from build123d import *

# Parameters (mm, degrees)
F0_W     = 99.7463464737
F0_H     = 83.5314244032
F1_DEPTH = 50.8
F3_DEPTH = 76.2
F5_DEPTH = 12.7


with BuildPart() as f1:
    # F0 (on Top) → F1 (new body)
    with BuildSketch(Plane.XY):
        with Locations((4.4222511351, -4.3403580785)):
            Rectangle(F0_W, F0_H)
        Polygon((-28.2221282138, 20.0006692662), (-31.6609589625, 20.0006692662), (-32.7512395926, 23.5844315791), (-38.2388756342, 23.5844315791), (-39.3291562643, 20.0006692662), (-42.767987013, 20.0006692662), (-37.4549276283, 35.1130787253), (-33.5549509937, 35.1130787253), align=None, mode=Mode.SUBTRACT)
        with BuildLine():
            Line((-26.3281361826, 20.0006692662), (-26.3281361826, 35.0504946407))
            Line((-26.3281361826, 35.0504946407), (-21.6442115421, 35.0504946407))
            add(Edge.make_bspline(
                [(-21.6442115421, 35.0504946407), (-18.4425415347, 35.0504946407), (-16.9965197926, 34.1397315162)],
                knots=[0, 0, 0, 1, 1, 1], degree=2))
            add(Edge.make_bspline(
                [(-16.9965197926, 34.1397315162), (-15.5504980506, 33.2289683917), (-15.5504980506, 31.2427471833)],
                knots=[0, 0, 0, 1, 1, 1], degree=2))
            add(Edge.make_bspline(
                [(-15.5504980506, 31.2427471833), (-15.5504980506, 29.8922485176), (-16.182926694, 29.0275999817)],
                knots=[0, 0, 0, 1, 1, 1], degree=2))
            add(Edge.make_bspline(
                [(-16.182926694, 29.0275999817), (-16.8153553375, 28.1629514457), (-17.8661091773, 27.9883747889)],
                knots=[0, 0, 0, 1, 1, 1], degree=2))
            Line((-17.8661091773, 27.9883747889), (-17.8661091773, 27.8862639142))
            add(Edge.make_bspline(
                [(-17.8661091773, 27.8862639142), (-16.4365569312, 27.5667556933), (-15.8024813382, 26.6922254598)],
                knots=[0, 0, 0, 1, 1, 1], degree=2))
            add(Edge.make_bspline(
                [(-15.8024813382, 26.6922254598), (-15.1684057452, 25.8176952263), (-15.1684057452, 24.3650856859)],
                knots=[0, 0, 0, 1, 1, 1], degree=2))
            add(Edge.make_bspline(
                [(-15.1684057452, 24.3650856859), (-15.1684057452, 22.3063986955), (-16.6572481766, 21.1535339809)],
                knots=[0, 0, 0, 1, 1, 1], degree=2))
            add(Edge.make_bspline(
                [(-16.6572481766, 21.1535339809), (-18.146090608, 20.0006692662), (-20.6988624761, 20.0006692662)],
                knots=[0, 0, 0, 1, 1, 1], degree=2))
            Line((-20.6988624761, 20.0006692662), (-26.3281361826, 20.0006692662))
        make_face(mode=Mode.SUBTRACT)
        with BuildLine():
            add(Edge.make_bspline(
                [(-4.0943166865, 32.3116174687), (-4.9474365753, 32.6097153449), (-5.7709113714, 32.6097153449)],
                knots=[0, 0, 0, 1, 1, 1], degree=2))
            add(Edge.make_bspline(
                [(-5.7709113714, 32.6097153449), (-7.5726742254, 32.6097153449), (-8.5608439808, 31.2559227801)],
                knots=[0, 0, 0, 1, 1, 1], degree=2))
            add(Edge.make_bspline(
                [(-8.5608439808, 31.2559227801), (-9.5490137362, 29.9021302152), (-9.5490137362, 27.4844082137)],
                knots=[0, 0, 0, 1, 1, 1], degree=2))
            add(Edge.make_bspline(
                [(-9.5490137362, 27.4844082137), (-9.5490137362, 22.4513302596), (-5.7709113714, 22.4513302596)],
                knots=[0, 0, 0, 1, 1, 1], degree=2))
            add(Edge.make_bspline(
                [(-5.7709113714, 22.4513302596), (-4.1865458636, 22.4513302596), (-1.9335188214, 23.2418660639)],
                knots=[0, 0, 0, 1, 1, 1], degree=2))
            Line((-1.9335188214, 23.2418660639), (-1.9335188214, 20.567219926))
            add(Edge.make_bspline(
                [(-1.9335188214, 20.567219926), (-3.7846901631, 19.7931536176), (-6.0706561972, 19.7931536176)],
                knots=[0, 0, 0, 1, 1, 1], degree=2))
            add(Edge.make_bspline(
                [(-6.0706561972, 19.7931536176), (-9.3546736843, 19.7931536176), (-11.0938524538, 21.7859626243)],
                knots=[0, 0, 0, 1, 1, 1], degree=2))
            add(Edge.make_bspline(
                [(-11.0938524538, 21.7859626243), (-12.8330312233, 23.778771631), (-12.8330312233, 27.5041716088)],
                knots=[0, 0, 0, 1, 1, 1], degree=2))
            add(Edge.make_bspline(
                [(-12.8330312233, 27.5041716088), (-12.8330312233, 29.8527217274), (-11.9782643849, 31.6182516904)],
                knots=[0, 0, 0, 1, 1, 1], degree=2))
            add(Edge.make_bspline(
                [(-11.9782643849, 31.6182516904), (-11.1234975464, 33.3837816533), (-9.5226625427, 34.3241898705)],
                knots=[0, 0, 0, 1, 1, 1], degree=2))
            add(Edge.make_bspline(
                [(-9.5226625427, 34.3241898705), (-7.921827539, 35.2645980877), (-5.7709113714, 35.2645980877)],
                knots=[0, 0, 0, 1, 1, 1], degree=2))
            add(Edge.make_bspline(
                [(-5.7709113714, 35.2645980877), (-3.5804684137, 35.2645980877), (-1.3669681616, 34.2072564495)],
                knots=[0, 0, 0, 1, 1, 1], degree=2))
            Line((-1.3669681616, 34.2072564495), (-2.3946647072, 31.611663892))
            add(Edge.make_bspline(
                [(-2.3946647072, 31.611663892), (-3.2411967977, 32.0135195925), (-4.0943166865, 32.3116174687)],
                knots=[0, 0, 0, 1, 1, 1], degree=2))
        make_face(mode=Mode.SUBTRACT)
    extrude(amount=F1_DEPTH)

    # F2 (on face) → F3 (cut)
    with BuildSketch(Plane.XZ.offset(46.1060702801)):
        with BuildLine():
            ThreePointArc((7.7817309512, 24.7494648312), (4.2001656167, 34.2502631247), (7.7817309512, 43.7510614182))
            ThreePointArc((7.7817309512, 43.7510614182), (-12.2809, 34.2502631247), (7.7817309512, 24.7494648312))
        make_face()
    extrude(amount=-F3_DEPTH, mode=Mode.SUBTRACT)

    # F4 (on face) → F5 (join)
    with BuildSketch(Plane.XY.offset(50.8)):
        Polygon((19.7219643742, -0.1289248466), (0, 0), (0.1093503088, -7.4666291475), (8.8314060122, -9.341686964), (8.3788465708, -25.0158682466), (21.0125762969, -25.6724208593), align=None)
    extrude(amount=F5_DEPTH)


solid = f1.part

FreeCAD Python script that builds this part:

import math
import FreeCAD as App
import Part
import Sketcher
Q = App.Units.Quantity

doc = App.newDocument("Part")
body = doc.addObject("PartDesign::Body", "Body")

sketch1 = body.newObject("Sketcher::SketchObject", "Sketch")
sketch1.AttachmentSupport = (doc.getObject("XY_Plane"), [""])
sketch1.MapMode = "FlatFace"
sketch1.addGeometry(Part.LineSegment(App.Vector(-45.450922, 37.425354, 0), App.Vector(-45.450922, -46.10607, 0)), False)
sketch1.addGeometry(Part.LineSegment(App.Vector(-45.450922, -46.10607, 0), App.Vector(54.295424, -46.10607, 0)), False)
sketch1.addGeometry(Part.LineSegment(App.Vector(54.295424, -46.10607, 0), App.Vector(54.295424, 37.425354, 0)), False)
sketch1.addGeometry(Part.LineSegment(App.Vector(54.295424, 37.425354, 0), App.Vector(-45.450922, 37.425354, 0)), False)
sketch1.addGeometry(Part.LineSegment(App.Vector(-20.698862, 20.000669, 0), App.Vector(-26.328136, 20.000669, 0)), False)
sketch1.addGeometry(Part.LineSegment(App.Vector(-26.328136, 20.000669, 0), App.Vector(-26.328136, 35.050495, 0)), False)
sketch1.addGeometry(Part.LineSegment(App.Vector(-26.328136, 35.050495, 0), App.Vector(-21.644212, 35.050495, 0)), False)
sketch1.addGeometry(Part.BSplineCurve([App.Vector(-21.644212, 35.050495, 0), App.Vector(-18.442542, 35.050495, 0), App.Vector(-16.99652, 34.139732, 0)], [3, 3], [0, 1], False, 2, [1, 1, 1], False), False)
sketch1.addGeometry(Part.BSplineCurve([App.Vector(-16.99652, 34.139732, 0), App.Vector(-15.550498, 33.228968, 0), App.Vector(-15.550498, 29.892249, 0), App.Vector(-16.182927, 29.0276, 0)], [3, 1, 3], [0, 1, 1.679933665], False, 2, [1, 1, 1, 1], False), False)
sketch1.addGeometry(Part.BSplineCurve([App.Vector(-16.182927, 29.0276, 0), App.Vector(-16.815355, 28.162951, 0), App.Vector(-17.866109, 27.988375, 0)], [3, 3], [0, 1], False, 2, [1, 1, 1], False), False)
sketch1.addGeometry(Part.LineSegment(App.Vector(-17.866109, 27.988375, 0), App.Vector(-17.866109, 27.886264, 0)), False)
sketch1.addGeometry(Part.BSplineCurve([App.Vector(-17.866109, 27.886264, 0), App.Vector(-16.436557, 27.566756, 0), App.Vector(-15.168406, 25.817695, 0), App.Vector(-15.168406, 22.306399, 0), App.Vector(-16.657248, 21.153534, 0)], [3, 1, 1, 3], [0, 1, 2, 3.41723356], False, 2, [1, 1, 1, 1, 1], False), False)
sketch1.addGeometry(Part.BSplineCurve([App.Vector(-16.657248, 21.153534, 0), App.Vector(-18.146091, 20.000669, 0), App.Vector(-20.698862, 20.000669, 0)], [3, 3], [0, 1], False, 2, [1, 1, 1], False), False)
sketch1.addGeometry(Part.LineSegment(App.Vector(-33.554951, 35.113079, 0), App.Vector(-28.222128, 20.000669, 0)), False)
sketch1.addGeometry(Part.LineSegment(App.Vector(-28.222128, 20.000669, 0), App.Vector(-31.660959, 20.000669, 0)), False)
sketch1.addGeometry(Part.LineSegment(App.Vector(-31.660959, 20.000669, 0), App.Vector(-32.75124, 23.584432, 0)), False)
sketch1.addGeometry(Part.LineSegment(App.Vector(-32.75124, 23.584432, 0), App.Vector(-38.238876, 23.584432, 0)), False)
sketch1.addGeometry(Part.LineSegment(App.Vector(-38.238876, 23.584432, 0), App.Vector(-39.329156, 20.000669, 0)), False)
sketch1.addGeometry(Part.LineSegment(App.Vector(-39.329156, 20.000669, 0), App.Vector(-42.767987, 20.000669, 0)), False)
sketch1.addGeometry(Part.LineSegment(App.Vector(-42.767987, 20.000669, 0), App.Vector(-37.454928, 35.113079, 0)), False)
sketch1.addGeometry(Part.LineSegment(App.Vector(-37.454928, 35.113079, 0), App.Vector(-33.554951, 35.113079, 0)), False)
sketch1.addGeometry(Part.BSplineCurve([App.Vector(-2.394665, 31.611664, 0), App.Vector(-3.241197, 32.01352, 0), App.Vector(-4.947437, 32.609715, 0), App.Vector(-7.572674, 32.609715, 0), App.Vector(-8.560844, 31.255923, 0)], [3, 1, 1, 3], [0, 1, 2, 4.188], False, 2, [1, 1, 1, 1, 1], False), False)
sketch1.addGeometry(Part.BSplineCurve([App.Vector(-8.560844, 31.255923, 0), App.Vector(-9.549014, 29.90213, 0), App.Vector(-9.549014, 22.45133, 0), App.Vector(-4.186546, 22.45133, 0), App.Vector(-1.933519, 23.241866, 0)], [3, 1, 1, 3], [0, 1, 3.081743869, 3.954733234], False, 2, [1, 1, 1, 1, 1], False), False)
sketch1.addGeometry(Part.LineSegment(App.Vector(-1.933519, 23.241866, 0), App.Vector(-1.933519, 20.56722, 0)), False)
sketch1.addGeometry(Part.BSplineCurve([App.Vector(-1.933519, 20.56722, 0), App.Vector(-3.78469, 19.793154, 0), App.Vector(-9.354674, 19.793154, 0), App.Vector(-12.833031, 23.778772, 0), App.Vector(-12.833031, 29.852722, 0), App.Vector(-11.978264, 31.618252, 0)], [3, 1, 1, 1, 3], [0, 1, 2.436599424, 3.873198847, 4.77885348], False, 2, [1, 1, 1, 1, 1, 1], False), False)
sketch1.addGeometry(Part.BSplineCurve([App.Vector(-11.978264, 31.618252, 0), App.Vector(-11.123498, 33.383782, 0), App.Vector(-7.921828, 35.264598, 0), App.Vector(-3.580468, 35.264598, 0), App.Vector(-1.366968, 34.207256, 0)], [3, 1, 1, 3], [0, 1, 2, 3.018376723], False, 2, [1, 1, 1, 1, 1], False), False)
sketch1.addGeometry(Part.LineSegment(App.Vector(-1.366968, 34.207256, 0), App.Vector(-2.394665, 31.611664, 0)), False)
sketch1.addConstraint(Sketcher.Constraint("Block", 7))
sketch1.addConstraint(Sketcher.Constraint("Block", 8))
sketch1.addConstraint(Sketcher.Constraint("Block", 9))
sketch1.addConstraint(Sketcher.Constraint("Block", 11))
sketch1.addConstraint(Sketcher.Constraint("Block", 12))
sketch1.addConstraint(Sketcher.Constraint("Block", 21))
sketch1.addConstraint(Sketcher.Constraint("Block", 22))
sketch1.addConstraint(Sketcher.Constraint("Block", 24))
sketch1.addConstraint(Sketcher.Constraint("Block", 25))
sketch1.addConstraint(Sketcher.Constraint("Coincident", 0, 2, 1, 1))
sketch1.addConstraint(Sketcher.Constraint("Coincident", 1, 2, 2, 1))
sketch1.addConstraint(Sketcher.Constraint("Coincident", 2, 2, 3, 1))
sketch1.addConstraint(Sketcher.Constraint("Coincident", 3, 2, 0, 1))
sketch1.addConstraint(Sketcher.Constraint("Coincident", 4, 2, 5, 1))
sketch1.addConstraint(Sketcher.Constraint("Coincident", 5, 2, 6, 1))
sketch1.addConstraint(Sketcher.Constraint("Coincident", 6, 2, 7, 1))
sketch1.addConstraint(Sketcher.Constraint("Coincident", 9, 2, 10, 1))
sketch1.addConstraint(Sketcher.Constraint("Coincident", 10, 2, 11, 1))
sketch1.addConstraint(Sketcher.Constraint("Coincident", 12, 2, 4, 1))
sketch1.addConstraint(Sketcher.Constraint("Coincident", 13, 2, 14, 1))
sketch1.addConstraint(Sketcher.Constraint("Coincident", 14, 2, 15, 1))
sketch1.addConstraint(Sketcher.Constraint("Coincident", 15, 2, 16, 1))
sketch1.addConstraint(Sketcher.Constraint("Coincident", 16, 2, 17, 1))
sketch1.addConstraint(Sketcher.Constraint("Coincident", 17, 2, 18, 1))
sketch1.addConstraint(Sketcher.Constraint("Coincident", 18, 2, 19, 1))
sketch1.addConstraint(Sketcher.Constraint("Coincident", 19, 2, 20, 1))
sketch1.addConstraint(Sketcher.Constraint("Coincident", 20, 2, 13, 1))
sketch1.addConstraint(Sketcher.Constraint("Coincident", 22, 2, 23, 1))
sketch1.addConstraint(Sketcher.Constraint("Coincident", 23, 2, 24, 1))
sketch1.addConstraint(Sketcher.Constraint("Coincident", 25, 2, 26, 1))
sketch1.addConstraint(Sketcher.Constraint("Coincident", 26, 2, 21, 1))
sketch1.addConstraint(Sketcher.Constraint("Vertical", 0))
sketch1.addConstraint(Sketcher.Constraint("Horizontal", 1))
sketch1.addConstraint(Sketcher.Constraint("Vertical", 2))
sketch1.addConstraint(Sketcher.Constraint("Horizontal", 3))
sketch1.addConstraint(Sketcher.Constraint("Horizontal", 4))
sketch1.addConstraint(Sketcher.Constraint("Vertical", 5))
sketch1.addConstraint(Sketcher.Constraint("Horizontal", 6))
sketch1.addConstraint(Sketcher.Constraint("Horizontal", 14))
sketch1.addConstraint(Sketcher.Constraint("Horizontal", 16))
sketch1.addConstraint(Sketcher.Constraint("Horizontal", 18))
sketch1.addConstraint(Sketcher.Constraint("Horizontal", 20))
sketch1.addConstraint(Sketcher.Constraint("Horizontal", 4, 2, 13, 2))
sketch1.addConstraint(Sketcher.Constraint("Horizontal", 14, 2, 17, 2))
sketch1.addConstraint(Sketcher.Constraint("Equal", 14, 18))
sketch1.addConstraint(Sketcher.Constraint("Equal", 15, 17))
sketch1.addConstraint(Sketcher.Constraint("DistanceX", 14, 2, 14, 1, 3.438831))
sketch1.addConstraint(Sketcher.Constraint("Distance", 15, 3.74594))
sketch1.addConstraint(Sketcher.Constraint("Distance", 19, 16.019161))
sketch1.addConstraint(Sketcher.Constraint("DistanceX", 1, 1, 1, 2, 99.746346))
sketch1.addConstraint(Sketcher.Constraint("DistanceX", 4, 2, 4, 1, 5.629274))
sketch1.addConstraint(Sketcher.Constraint("DistanceX", 16, 2, 16, 1, 5.487636))
sketch1.addConstraint(Sketcher.Constraint("DistanceX", 20, 1, 20, 2, 3.899977))
sketch1.addConstraint(Sketcher.Constraint("DistanceY", 0, 2, 0, 1, 83.531424))
sketch1.addConstraint(Sketcher.Constraint("DistanceY", 0, 2, -1, 1, 46.10607))
sketch1.addConstraint(Sketcher.Constraint("DistanceX", 13, 2, -1, 1, 28.222128))
sketch1.addConstraint(Sketcher.Constraint("DistanceX", 15, 2, -1, 1, 32.75124))
sketch1.addConstraint(Sketcher.Constraint("DistanceY", -1, 1, 19, 2, 35.113079))
sketch1.addConstraint(Sketcher.Constraint("DistanceX", 4, 2, 2, 2, 80.623561))
pad1 = body.newObject("PartDesign::Pad", "Pad")
pad1.Profile = sketch1
pad1.Length = Q("2 in")

sketch2 = body.newObject("Sketcher::SketchObject", "Sketch001")
sketch2.AttachmentSupport = (doc.getObject("XZ_Plane"), [""])
sketch2.MapMode = "FlatFace"
sketch2.AttachmentOffset = App.Placement(App.Vector(0, 0, 46.10607), App.Rotation())
sketch2.addGeometry(Part.ArcOfCircle(Part.Circle(App.Vector(18.592305, 34.250263, 0), App.Vector(0, 0, 1), 14.39214), math.radians(138.689602), math.radians(221.310398)), False)
sketch2.addGeometry(Part.ArcOfCircle(Part.Circle(App.Vector(0, 34.250263, 0), App.Vector(0, 0, 1), 12.2809), math.radians(50.680441), math.radians(309.319559)), False)
sketch2.addConstraint(Sketcher.Constraint("Coincident", 0, 1, 1, 1))
sketch2.addConstraint(Sketcher.Constraint("Coincident", 1, 2, 0, 2))
sketch2.addConstraint(Sketcher.Constraint("PointOnObject", 1, 3, -2))
sketch2.addConstraint(Sketcher.Constraint("Horizontal", 0, 3, 1, 3))
sketch2.addConstraint(Sketcher.Constraint("Radius", 1, Q("0.4835 in")))
sketch2.addConstraint(Sketcher.Constraint("Radius", 0, 14.39214))
sketch2.addConstraint(Sketcher.Constraint("DistanceY", 1, 3, 0, 1, 9.500798))
sketch2.addConstraint(Sketcher.Constraint("DistanceY", -1, 1, 0, 1, 43.751061))
pocket1 = body.newObject("PartDesign::Pocket", "Pocket")
pocket1.Profile = sketch2
pocket1.Length = Q("3 in")

sketch3 = body.newObject("Sketcher::SketchObject", "Sketch002")
sketch3.AttachmentSupport = (doc.getObject("XY_Plane"), [""])
sketch3.MapMode = "FlatFace"
sketch3.AttachmentOffset = App.Placement(App.Vector(0, 0, 2 * 25.4), App.Rotation())
sketch3.addGeometry(Part.LineSegment(App.Vector(19.721964, -0.128925, 0), App.Vector(0, 0, 0)), False)
sketch3.addGeometry(Part.LineSegment(App.Vector(0, 0, 0), App.Vector(0.10935, -7.466629, 0)), False)
sketch3.addGeometry(Part.LineSegment(App.Vector(0.10935, -7.466629, 0), App.Vector(8.831406, -9.341687, 0)), False)
sketch3.addGeometry(Part.LineSegment(App.Vector(8.831406, -9.341687, 0), App.Vector(8.378847, -25.015868, 0)), False)
sketch3.addGeometry(Part.LineSegment(App.Vector(8.378847, -25.015868, 0), App.Vector(21.012576, -25.672421, 0)), False)
sketch3.addGeometry(Part.LineSegment(App.Vector(21.012576, -25.672421, 0), App.Vector(19.721964, -0.128925, 0)), False)
sketch3.addConstraint(Sketcher.Constraint("Coincident", 0, 2, 1, 1))
sketch3.addConstraint(Sketcher.Constraint("Coincident", 1, 2, 2, 1))
sketch3.addConstraint(Sketcher.Constraint("Coincident", 2, 2, 3, 1))
sketch3.addConstraint(Sketcher.Constraint("Coincident", 3, 2, 4, 1))
sketch3.addConstraint(Sketcher.Constraint("Coincident", 4, 2, 5, 1))
sketch3.addConstraint(Sketcher.Constraint("Coincident", 5, 2, 0, 1))
sketch3.addConstraint(Sketcher.Constraint("Coincident", 0, 2, -1, 1))
sketch3.addConstraint(Sketcher.Constraint("Distance", 1, 7.46743))
sketch3.addConstraint(Sketcher.Constraint("Distance", 2, 8.921328))
sketch3.addConstraint(Sketcher.Constraint("Distance", 4, 12.650778))
sketch3.addConstraint(Sketcher.Constraint("Distance", 5, 25.57608))
sketch3.addConstraint(Sketcher.Constraint("DistanceX", -1, 1, 1, 2, 0.10935))
sketch3.addConstraint(Sketcher.Constraint("DistanceY", 3, 2, -1, 1, 25.015868))
sketch3.addConstraint(Sketcher.Constraint("DistanceY", 4, 2, -1, 1, 25.672421))
sketch3.addConstraint(Sketcher.Constraint("DistanceX", 3, 2, 2, 2, 0.452559))
sketch3.addConstraint(Sketcher.Constraint("DistanceY", 3, 2, 2, 2, 15.674181))
sketch3.addConstraint(Sketcher.Constraint("DistanceX", 2, 2, 5, 2, 10.890558))
pad2 = body.newObject("PartDesign::Pad", "Pad001")
pad2.Profile = sketch3
pad2.Length = Q("0.5 in")

doc.recompute()
